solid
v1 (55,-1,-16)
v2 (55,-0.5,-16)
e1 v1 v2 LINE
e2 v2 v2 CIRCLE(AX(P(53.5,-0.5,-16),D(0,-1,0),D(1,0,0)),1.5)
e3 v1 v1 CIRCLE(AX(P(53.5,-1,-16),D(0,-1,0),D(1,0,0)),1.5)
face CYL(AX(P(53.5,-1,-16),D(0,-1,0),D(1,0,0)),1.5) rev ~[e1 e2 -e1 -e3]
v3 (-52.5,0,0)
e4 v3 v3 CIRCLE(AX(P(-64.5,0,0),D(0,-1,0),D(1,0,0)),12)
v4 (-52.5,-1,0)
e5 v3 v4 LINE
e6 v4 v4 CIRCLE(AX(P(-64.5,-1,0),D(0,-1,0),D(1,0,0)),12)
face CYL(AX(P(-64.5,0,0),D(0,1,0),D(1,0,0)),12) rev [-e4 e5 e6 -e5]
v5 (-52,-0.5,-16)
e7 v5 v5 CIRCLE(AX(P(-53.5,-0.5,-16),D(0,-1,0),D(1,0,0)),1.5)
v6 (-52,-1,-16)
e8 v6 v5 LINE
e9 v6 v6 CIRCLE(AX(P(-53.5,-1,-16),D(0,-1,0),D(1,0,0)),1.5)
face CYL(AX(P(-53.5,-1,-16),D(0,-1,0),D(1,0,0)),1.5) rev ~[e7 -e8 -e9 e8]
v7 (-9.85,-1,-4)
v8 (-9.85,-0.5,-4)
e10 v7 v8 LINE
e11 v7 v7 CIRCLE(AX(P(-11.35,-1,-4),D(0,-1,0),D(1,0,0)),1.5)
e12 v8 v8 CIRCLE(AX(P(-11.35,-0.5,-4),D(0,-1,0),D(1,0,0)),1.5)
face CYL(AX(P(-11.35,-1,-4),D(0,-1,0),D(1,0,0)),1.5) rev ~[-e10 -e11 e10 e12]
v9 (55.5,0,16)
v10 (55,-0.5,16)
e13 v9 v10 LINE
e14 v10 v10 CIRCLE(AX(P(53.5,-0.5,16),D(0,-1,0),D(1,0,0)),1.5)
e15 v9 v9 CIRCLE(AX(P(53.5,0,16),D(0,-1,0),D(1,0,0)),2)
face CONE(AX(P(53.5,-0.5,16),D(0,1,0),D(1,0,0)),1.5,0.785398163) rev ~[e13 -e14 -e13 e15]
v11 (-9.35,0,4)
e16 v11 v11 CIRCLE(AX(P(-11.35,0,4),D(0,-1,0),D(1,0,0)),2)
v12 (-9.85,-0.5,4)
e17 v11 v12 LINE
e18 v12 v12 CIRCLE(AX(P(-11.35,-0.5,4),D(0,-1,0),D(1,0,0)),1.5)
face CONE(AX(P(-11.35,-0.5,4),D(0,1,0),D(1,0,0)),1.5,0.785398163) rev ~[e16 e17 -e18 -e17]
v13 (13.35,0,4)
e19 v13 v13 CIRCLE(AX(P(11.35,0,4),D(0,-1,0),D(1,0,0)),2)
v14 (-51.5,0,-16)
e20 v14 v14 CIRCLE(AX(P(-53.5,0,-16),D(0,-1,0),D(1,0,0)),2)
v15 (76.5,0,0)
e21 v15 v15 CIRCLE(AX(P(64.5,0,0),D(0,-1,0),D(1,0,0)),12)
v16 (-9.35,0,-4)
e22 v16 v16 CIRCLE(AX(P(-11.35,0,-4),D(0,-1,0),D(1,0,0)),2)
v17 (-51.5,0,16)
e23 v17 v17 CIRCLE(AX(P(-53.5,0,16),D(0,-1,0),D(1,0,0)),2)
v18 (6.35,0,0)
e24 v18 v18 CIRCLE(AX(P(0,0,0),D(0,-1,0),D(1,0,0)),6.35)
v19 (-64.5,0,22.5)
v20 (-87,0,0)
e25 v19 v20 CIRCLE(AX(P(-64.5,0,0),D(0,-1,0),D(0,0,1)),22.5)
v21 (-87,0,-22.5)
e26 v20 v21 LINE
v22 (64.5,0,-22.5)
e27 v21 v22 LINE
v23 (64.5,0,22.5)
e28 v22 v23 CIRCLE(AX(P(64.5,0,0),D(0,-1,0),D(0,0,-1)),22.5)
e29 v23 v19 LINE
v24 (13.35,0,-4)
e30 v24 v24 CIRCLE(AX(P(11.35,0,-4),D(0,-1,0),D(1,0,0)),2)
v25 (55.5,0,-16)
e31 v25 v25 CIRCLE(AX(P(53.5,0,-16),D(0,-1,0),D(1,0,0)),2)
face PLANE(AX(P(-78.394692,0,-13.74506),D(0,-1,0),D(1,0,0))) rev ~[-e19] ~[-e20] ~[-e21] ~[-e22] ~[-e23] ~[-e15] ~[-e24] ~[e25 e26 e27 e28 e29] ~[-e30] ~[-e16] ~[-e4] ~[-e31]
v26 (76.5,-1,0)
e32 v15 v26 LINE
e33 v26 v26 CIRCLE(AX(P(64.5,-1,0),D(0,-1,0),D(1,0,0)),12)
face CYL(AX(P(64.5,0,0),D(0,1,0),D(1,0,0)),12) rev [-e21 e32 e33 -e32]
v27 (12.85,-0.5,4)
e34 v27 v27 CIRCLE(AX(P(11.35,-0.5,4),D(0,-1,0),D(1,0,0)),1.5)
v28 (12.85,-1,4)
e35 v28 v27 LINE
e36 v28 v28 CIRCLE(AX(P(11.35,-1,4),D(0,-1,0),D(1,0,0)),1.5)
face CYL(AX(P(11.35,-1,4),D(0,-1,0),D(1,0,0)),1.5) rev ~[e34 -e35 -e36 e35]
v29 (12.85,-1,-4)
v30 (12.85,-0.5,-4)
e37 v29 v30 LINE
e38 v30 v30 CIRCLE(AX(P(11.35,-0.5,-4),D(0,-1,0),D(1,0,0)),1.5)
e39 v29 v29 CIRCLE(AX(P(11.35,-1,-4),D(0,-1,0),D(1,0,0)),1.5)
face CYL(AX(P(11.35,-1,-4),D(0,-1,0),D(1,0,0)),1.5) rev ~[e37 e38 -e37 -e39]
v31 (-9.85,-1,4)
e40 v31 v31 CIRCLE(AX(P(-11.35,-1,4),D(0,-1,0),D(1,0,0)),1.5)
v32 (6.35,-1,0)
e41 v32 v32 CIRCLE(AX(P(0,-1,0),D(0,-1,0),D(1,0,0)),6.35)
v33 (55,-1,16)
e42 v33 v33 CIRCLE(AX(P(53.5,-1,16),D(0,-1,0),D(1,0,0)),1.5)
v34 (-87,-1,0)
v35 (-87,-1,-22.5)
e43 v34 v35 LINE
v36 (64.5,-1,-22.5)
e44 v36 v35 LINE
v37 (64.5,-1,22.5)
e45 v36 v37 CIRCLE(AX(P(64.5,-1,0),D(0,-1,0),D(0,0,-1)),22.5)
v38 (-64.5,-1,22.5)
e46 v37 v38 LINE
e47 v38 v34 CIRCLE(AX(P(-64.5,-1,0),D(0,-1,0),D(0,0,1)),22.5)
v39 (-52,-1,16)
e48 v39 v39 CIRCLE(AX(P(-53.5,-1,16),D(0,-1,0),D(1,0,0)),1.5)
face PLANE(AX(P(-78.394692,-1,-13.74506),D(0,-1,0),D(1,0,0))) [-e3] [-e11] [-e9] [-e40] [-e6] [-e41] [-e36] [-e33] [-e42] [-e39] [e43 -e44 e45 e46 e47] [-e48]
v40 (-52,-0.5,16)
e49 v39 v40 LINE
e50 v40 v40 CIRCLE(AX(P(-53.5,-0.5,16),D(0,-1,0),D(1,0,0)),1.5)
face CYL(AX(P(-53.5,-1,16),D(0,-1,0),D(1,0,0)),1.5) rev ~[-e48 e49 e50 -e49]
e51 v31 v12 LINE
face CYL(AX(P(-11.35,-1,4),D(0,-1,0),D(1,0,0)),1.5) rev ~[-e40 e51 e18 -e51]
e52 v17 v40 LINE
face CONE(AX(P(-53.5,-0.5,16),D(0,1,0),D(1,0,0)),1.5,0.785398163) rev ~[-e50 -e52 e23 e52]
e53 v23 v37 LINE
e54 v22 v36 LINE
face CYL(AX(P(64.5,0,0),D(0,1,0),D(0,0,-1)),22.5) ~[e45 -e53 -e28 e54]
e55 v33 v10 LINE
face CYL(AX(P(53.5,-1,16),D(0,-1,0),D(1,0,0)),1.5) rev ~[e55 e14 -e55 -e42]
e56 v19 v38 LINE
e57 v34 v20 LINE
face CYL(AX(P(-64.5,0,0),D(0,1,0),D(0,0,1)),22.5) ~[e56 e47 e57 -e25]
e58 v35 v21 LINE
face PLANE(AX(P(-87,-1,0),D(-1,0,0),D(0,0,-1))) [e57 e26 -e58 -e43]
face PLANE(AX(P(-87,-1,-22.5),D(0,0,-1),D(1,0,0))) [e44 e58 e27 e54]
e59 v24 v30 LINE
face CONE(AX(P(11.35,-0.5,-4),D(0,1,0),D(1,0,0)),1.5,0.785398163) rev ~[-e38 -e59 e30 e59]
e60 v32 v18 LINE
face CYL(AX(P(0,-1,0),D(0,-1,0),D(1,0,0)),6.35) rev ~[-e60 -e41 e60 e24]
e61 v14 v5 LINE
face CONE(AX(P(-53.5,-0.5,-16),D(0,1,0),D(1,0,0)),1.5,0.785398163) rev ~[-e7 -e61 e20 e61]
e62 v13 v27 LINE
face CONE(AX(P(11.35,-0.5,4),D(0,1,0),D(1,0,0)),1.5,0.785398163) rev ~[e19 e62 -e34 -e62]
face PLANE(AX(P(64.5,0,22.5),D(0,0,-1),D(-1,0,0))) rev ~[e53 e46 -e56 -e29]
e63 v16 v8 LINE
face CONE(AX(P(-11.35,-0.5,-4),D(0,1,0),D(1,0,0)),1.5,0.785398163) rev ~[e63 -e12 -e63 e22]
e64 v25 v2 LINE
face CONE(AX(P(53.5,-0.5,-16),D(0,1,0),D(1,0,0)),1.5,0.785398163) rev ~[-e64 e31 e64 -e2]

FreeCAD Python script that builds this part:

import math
import FreeCAD as App
import Part
import Sketcher

V = App.Vector
Q = App.Units.Quantity


def edges_at(feature, points):
    """Names of the edges that pass closest to the given points."""
    edges = feature.Shape.Edges
    near = lambda p: min(range(len(edges)), key=lambda i: edges[i].distToShape(Part.Vertex(*p))[0])
    return sorted({f"Edge{near(p) + 1}" for p in points})


def add_polygon(sketch, points):
    """Adds a closed chain of lines whose ends are joined by coincident constraints."""
    first, n = sketch.GeometryCount, len(points)
    for a, b in zip(points, points[1:] + points[:1]):
        sketch.addGeometry(Part.LineSegment(App.Vector(*a, 0), App.Vector(*b, 0)), False)
    for i in range(n):
        sketch.addConstraint(Sketcher.Constraint("Coincident", first + i, 2, first + (i + 1) % n, 1))

doc = App.newDocument("Part")
params = doc.addObject("Spreadsheet::Sheet", "Params")
for row, (alias, value) in enumerate([
    ("sketch1_diameter", "24 mm"),
    ("sketch1_radius", "22.5 mm"),
    ("sketch1_width", "129 mm"),
    ("pad1_length", "1 mm"),
    ("sketch2_width", "22.5 mm"),
    ("pad2_length", "1 mm"),
    ("sketch3_diameter", "3 mm"),
    ("pocket1_length", "25 mm"),
    ("chamfer_size", "0.5 mm"),
    ("sketch4_diameter", "12.7 mm"),
    ("pocket2_length", "25 mm"),
    ("sketch5_diameter", "3 mm"),
    ("pocket3_length", "25 mm"),
    ("chamfer2_size", "0.5 mm"),
], start=1):
    params.set(f"A{row}", alias)
    params.set(f"B{row}", "=" + value)
    params.setAlias(f"B{row}", alias)

body = doc.addObject("PartDesign::Body", "Body")

# Sketch on XZ plane
sketch1 = body.newObject("Sketcher::SketchObject", "Sketch")
sketch1.AttachmentSupport = (doc.getObject("XZ_Plane"), [""])
sketch1.MapMode = "FlatFace"
sketch1.addGeometry([
    Part.ArcOfCircle(Part.Circle(V(64, 0, 0), V(0, 0, 1), 22), math.radians(-90), math.radians(90)),  # 0
    Part.LineSegment(V(64, 22, 0), V(-64, 22, 0)),  # 1
    Part.ArcOfCircle(Part.Circle(V(-64, 0, 0), V(0, 0, 1), 22), math.radians(90), math.radians(270)),  # 2
    Part.LineSegment(V(-64, -22, 0), V(64, -22, 0)),  # 3
    Part.Circle(V(-64, 0, 0), V(0, 0, 1), 12),  # 4
    Part.Circle(V(64, 0, 0), V(0, 0, 1), 12),  # 5
], False)
sketch1.addConstraint([
    Sketcher.Constraint("Tangent", 0, 2, 1, 1),
    Sketcher.Constraint("Tangent", 1, 2, 2, 1),
    Sketcher.Constraint("Tangent", 2, 2, 3, 1),
    Sketcher.Constraint("Tangent", 3, 2, 0, 1),
    Sketcher.Constraint("Horizontal", 1),
    Sketcher.Constraint("Horizontal", 3),
    Sketcher.Constraint("Coincident", 4, 3, 2, 3),
    Sketcher.Constraint("Coincident", 5, 3, 0, 3),
    Sketcher.Constraint("Equal", 4, 5),
    Sketcher.Constraint("Symmetric", 0, 3, 2, 3, -1, 1),
    Sketcher.Constraint("Diameter", 4, Q("24 mm")),
    Sketcher.Constraint("Radius", 0, Q("22.5 mm")),
    Sketcher.Constraint("DistanceX", 1, 2, 1, 1, Q("129 mm")),
])
sketch1.setExpression("Constraints[10]", "Params.sketch1_diameter")
sketch1.setExpression("Constraints[11]", "Params.sketch1_radius")
sketch1.setExpression("Constraints[12]", "Params.sketch1_width")
pad1 = body.newObject("PartDesign::Pad", "Pad")
pad1.Profile = sketch1
pad1.setExpression("Length", "Params.pad1_length")

# Sketch on XZ plane
sketch2 = body.newObject("Sketcher::SketchObject", "Sketch001")
sketch2.AttachmentSupport = (doc.getObject("XZ_Plane"), [""])
sketch2.MapMode = "FlatFace"
sketch2.AttachmentOffset = App.Placement(V(0, 0, 1), App.Rotation())
add_polygon(sketch2, [(-87, -22), (-64, -22), (-64, -17), (-71, -15), (-78, -9), (-81, 0), (-87, 0)])  # lines 0-6
sketch2.addConstraint([
    Sketcher.Constraint("Horizontal", 0),
    Sketcher.Constraint("Vertical", 1),
    Sketcher.Constraint("Horizontal", 5),
    Sketcher.Constraint("Vertical", 6),
    Sketcher.Constraint("PointOnObject", 4, 2, -1),
    Sketcher.Constraint("Equal", 0, 6),
    Sketcher.Constraint("DistanceX", 0, 1, 0, 2, Q("22.5 mm")),
    Sketcher.Constraint("DistanceX", 5, 2, -1, 1, Q("87 mm")),
    Sketcher.Constraint("Distance", 2, Q("6.61123 mm")),
    Sketcher.Constraint("Distance", 4, Q("9.816132 mm")),
    Sketcher.Constraint("DistanceX", 5, 2, 5, 1, Q("6.122808 mm")),
    Sketcher.Constraint("DistanceY", 1, 1, 1, 2, Q("5.068642 mm")),
    Sketcher.Constraint("DistanceX", 2, 2, -1, 1, Q("70.548259 mm")),
    Sketcher.Constraint("DistanceY", 2, 2, 3, 2, Q("5.298651 mm")),
])
sketch2.setExpression("Constraints[13]", "Params.sketch2_width")
pad2 = body.newObject("PartDesign::Pad", "Pad001")
pad2.Profile = sketch2
pad2.setExpression("Length", "Params.pad2_length")
pad2.Reversed = True

# Sketch on XZ plane
sketch3 = body.newObject("Sketcher::SketchObject", "Sketch002")
sketch3.AttachmentSupport = (doc.getObject("XZ_Plane"), [""])
sketch3.MapMode = "FlatFace"
sketch3.AttachmentOffset = App.Placement(V(0, 0, 1), App.Rotation())
sketch3.addGeometry([
    Part.Circle(V(-53.5, 16, 0), V(0, 0, 1), 1.5),
    Part.Circle(V(-53.5, -16, 0), V(0, 0, 1), 1.5),
    Part.Circle(V(53.5, 16, 0), V(0, 0, 1), 1.5),
    Part.Circle(V(53.5, -16, 0), V(0, 0, 1), 1.5),
], False)
sketch3.addConstraint([
    Sketcher.Constraint("Equal", 0, 1),
    Sketcher.Constraint("Equal", 1, 2),
    Sketcher.Constraint("Equal", 2, 3),
    Sketcher.Constraint("Symmetric", 1, 3, 2, 3, -1, 1),
    Sketcher.Constraint("Symmetric", 0, 3, 3, 3, -1, 1),
    Sketcher.Constraint("Symmetric", 0, 3, 2, 3, -2),
    Sketcher.Constraint("Diameter", 0, Q("3 mm")),
    Sketcher.Constraint("DistanceY", -1, 1, 0, 3, Q("16 mm")),
    Sketcher.Constraint("DistanceX", 0, 3, 2, 3, Q("107 mm")),
])
sketch3.setExpression("Constraints[6]", "Params.sketch3_diameter")
pocket1 = body.newObject("PartDesign::Pocket", "Pocket")
pocket1.Profile = sketch3
pocket1.setExpression("Length", "Params.pocket1_length")
doc.recompute()

chamfer = body.newObject("PartDesign::Chamfer", "Chamfer")
chamfer.Base = (pocket1, edges_at(pocket1, [
    (-55, 0, 16),
    (-55, 0, -16),
    (52, 0, 16),
    (52, 0, -16),
]))
chamfer.setExpression("Size", "Params.chamfer_size")

# Sketch on XZ plane
sketch4 = body.newObject("Sketcher::SketchObject", "Sketch003")
sketch4.AttachmentSupport = (doc.getObject("XZ_Plane"), [""])
sketch4.MapMode = "FlatFace"
sketch4.AttachmentOffset = App.Placement(V(0, 0, 1), App.Rotation())
sketch4.addGeometry(Part.Circle(V(0, 0, 0), V(0, 0, 1), 6), False)
sketch4.addConstraint([
    Sketcher.Constraint("Coincident", 0, 3, -1, 1),
    Sketcher.Constraint("Diameter", 0, Q("12.7 mm")),
])
sketch4.setExpression("Constraints[1]", "Params.sketch4_diameter")
pocket2 = body.newObject("PartDesign::Pocket", "Pocket001")
pocket2.Profile = sketch4
pocket2.setExpression("Length", "Params.pocket2_length")

# Sketch on XZ plane
sketch5 = body.newObject("Sketcher::SketchObject", "Sketch004")
sketch5.AttachmentSupport = (doc.getObject("XZ_Plane"), [""])
sketch5.MapMode = "FlatFace"
sketch5.AttachmentOffset = App.Placement(V(0, 0, 1), App.Rotation())
sketch5.addGeometry([
    Part.Circle(V(-11.3, 4, 0), V(0, 0, 1), 1.5),
    Part.Circle(V(-11.3, -4, 0), V(0, 0, 1), 1.5),
    Part.Circle(V(11.3, 4, 0), V(0, 0, 1), 1.5),
    Part.Circle(V(11.3, -4, 0), V(0, 0, 1), 1.5),
], False)
sketch5.addConstraint([
    Sketcher.Constraint("Equal", 0, 1),
    Sketcher.Constraint("Equal", 1, 2),
    Sketcher.Constraint("Equal", 2, 3),
    Sketcher.Constraint("Symmetric", 1, 3, 2, 3, -1, 1),
    Sketcher.Constraint("Symmetric", 0, 3, 3, 3, -1, 1),
    Sketcher.Constraint("Symmetric", 0, 3, 2, 3, -2),
    Sketcher.Constraint("Diameter", 0, Q("3 mm")),
    Sketcher.Constraint("DistanceY", -1, 1, 0, 3, Q("4 mm")),
    Sketcher.Constraint("DistanceX", 0, 3, 2, 3, Q("22.7 mm")),
])
sketch5.setExpression("Constraints[6]", "Params.sketch5_diameter")
pocket3 = body.newObject("PartDesign::Pocket", "Pocket002")
pocket3.Profile = sketch5
pocket3.setExpression("Length", "Params.pocket3_length")
doc.recompute()

chamfer2 = body.newObject("PartDesign::Chamfer", "Chamfer001")
chamfer2.Base = (pocket3, edges_at(pocket3, [
    (-12.85, 0, 4),
    (-12.85, 0, -4),
    (9.85, 0, -4),
    (9.85, 0, 4),
]))
chamfer2.setExpression("Size", "Params.chamfer2_size")

doc.recompute()
